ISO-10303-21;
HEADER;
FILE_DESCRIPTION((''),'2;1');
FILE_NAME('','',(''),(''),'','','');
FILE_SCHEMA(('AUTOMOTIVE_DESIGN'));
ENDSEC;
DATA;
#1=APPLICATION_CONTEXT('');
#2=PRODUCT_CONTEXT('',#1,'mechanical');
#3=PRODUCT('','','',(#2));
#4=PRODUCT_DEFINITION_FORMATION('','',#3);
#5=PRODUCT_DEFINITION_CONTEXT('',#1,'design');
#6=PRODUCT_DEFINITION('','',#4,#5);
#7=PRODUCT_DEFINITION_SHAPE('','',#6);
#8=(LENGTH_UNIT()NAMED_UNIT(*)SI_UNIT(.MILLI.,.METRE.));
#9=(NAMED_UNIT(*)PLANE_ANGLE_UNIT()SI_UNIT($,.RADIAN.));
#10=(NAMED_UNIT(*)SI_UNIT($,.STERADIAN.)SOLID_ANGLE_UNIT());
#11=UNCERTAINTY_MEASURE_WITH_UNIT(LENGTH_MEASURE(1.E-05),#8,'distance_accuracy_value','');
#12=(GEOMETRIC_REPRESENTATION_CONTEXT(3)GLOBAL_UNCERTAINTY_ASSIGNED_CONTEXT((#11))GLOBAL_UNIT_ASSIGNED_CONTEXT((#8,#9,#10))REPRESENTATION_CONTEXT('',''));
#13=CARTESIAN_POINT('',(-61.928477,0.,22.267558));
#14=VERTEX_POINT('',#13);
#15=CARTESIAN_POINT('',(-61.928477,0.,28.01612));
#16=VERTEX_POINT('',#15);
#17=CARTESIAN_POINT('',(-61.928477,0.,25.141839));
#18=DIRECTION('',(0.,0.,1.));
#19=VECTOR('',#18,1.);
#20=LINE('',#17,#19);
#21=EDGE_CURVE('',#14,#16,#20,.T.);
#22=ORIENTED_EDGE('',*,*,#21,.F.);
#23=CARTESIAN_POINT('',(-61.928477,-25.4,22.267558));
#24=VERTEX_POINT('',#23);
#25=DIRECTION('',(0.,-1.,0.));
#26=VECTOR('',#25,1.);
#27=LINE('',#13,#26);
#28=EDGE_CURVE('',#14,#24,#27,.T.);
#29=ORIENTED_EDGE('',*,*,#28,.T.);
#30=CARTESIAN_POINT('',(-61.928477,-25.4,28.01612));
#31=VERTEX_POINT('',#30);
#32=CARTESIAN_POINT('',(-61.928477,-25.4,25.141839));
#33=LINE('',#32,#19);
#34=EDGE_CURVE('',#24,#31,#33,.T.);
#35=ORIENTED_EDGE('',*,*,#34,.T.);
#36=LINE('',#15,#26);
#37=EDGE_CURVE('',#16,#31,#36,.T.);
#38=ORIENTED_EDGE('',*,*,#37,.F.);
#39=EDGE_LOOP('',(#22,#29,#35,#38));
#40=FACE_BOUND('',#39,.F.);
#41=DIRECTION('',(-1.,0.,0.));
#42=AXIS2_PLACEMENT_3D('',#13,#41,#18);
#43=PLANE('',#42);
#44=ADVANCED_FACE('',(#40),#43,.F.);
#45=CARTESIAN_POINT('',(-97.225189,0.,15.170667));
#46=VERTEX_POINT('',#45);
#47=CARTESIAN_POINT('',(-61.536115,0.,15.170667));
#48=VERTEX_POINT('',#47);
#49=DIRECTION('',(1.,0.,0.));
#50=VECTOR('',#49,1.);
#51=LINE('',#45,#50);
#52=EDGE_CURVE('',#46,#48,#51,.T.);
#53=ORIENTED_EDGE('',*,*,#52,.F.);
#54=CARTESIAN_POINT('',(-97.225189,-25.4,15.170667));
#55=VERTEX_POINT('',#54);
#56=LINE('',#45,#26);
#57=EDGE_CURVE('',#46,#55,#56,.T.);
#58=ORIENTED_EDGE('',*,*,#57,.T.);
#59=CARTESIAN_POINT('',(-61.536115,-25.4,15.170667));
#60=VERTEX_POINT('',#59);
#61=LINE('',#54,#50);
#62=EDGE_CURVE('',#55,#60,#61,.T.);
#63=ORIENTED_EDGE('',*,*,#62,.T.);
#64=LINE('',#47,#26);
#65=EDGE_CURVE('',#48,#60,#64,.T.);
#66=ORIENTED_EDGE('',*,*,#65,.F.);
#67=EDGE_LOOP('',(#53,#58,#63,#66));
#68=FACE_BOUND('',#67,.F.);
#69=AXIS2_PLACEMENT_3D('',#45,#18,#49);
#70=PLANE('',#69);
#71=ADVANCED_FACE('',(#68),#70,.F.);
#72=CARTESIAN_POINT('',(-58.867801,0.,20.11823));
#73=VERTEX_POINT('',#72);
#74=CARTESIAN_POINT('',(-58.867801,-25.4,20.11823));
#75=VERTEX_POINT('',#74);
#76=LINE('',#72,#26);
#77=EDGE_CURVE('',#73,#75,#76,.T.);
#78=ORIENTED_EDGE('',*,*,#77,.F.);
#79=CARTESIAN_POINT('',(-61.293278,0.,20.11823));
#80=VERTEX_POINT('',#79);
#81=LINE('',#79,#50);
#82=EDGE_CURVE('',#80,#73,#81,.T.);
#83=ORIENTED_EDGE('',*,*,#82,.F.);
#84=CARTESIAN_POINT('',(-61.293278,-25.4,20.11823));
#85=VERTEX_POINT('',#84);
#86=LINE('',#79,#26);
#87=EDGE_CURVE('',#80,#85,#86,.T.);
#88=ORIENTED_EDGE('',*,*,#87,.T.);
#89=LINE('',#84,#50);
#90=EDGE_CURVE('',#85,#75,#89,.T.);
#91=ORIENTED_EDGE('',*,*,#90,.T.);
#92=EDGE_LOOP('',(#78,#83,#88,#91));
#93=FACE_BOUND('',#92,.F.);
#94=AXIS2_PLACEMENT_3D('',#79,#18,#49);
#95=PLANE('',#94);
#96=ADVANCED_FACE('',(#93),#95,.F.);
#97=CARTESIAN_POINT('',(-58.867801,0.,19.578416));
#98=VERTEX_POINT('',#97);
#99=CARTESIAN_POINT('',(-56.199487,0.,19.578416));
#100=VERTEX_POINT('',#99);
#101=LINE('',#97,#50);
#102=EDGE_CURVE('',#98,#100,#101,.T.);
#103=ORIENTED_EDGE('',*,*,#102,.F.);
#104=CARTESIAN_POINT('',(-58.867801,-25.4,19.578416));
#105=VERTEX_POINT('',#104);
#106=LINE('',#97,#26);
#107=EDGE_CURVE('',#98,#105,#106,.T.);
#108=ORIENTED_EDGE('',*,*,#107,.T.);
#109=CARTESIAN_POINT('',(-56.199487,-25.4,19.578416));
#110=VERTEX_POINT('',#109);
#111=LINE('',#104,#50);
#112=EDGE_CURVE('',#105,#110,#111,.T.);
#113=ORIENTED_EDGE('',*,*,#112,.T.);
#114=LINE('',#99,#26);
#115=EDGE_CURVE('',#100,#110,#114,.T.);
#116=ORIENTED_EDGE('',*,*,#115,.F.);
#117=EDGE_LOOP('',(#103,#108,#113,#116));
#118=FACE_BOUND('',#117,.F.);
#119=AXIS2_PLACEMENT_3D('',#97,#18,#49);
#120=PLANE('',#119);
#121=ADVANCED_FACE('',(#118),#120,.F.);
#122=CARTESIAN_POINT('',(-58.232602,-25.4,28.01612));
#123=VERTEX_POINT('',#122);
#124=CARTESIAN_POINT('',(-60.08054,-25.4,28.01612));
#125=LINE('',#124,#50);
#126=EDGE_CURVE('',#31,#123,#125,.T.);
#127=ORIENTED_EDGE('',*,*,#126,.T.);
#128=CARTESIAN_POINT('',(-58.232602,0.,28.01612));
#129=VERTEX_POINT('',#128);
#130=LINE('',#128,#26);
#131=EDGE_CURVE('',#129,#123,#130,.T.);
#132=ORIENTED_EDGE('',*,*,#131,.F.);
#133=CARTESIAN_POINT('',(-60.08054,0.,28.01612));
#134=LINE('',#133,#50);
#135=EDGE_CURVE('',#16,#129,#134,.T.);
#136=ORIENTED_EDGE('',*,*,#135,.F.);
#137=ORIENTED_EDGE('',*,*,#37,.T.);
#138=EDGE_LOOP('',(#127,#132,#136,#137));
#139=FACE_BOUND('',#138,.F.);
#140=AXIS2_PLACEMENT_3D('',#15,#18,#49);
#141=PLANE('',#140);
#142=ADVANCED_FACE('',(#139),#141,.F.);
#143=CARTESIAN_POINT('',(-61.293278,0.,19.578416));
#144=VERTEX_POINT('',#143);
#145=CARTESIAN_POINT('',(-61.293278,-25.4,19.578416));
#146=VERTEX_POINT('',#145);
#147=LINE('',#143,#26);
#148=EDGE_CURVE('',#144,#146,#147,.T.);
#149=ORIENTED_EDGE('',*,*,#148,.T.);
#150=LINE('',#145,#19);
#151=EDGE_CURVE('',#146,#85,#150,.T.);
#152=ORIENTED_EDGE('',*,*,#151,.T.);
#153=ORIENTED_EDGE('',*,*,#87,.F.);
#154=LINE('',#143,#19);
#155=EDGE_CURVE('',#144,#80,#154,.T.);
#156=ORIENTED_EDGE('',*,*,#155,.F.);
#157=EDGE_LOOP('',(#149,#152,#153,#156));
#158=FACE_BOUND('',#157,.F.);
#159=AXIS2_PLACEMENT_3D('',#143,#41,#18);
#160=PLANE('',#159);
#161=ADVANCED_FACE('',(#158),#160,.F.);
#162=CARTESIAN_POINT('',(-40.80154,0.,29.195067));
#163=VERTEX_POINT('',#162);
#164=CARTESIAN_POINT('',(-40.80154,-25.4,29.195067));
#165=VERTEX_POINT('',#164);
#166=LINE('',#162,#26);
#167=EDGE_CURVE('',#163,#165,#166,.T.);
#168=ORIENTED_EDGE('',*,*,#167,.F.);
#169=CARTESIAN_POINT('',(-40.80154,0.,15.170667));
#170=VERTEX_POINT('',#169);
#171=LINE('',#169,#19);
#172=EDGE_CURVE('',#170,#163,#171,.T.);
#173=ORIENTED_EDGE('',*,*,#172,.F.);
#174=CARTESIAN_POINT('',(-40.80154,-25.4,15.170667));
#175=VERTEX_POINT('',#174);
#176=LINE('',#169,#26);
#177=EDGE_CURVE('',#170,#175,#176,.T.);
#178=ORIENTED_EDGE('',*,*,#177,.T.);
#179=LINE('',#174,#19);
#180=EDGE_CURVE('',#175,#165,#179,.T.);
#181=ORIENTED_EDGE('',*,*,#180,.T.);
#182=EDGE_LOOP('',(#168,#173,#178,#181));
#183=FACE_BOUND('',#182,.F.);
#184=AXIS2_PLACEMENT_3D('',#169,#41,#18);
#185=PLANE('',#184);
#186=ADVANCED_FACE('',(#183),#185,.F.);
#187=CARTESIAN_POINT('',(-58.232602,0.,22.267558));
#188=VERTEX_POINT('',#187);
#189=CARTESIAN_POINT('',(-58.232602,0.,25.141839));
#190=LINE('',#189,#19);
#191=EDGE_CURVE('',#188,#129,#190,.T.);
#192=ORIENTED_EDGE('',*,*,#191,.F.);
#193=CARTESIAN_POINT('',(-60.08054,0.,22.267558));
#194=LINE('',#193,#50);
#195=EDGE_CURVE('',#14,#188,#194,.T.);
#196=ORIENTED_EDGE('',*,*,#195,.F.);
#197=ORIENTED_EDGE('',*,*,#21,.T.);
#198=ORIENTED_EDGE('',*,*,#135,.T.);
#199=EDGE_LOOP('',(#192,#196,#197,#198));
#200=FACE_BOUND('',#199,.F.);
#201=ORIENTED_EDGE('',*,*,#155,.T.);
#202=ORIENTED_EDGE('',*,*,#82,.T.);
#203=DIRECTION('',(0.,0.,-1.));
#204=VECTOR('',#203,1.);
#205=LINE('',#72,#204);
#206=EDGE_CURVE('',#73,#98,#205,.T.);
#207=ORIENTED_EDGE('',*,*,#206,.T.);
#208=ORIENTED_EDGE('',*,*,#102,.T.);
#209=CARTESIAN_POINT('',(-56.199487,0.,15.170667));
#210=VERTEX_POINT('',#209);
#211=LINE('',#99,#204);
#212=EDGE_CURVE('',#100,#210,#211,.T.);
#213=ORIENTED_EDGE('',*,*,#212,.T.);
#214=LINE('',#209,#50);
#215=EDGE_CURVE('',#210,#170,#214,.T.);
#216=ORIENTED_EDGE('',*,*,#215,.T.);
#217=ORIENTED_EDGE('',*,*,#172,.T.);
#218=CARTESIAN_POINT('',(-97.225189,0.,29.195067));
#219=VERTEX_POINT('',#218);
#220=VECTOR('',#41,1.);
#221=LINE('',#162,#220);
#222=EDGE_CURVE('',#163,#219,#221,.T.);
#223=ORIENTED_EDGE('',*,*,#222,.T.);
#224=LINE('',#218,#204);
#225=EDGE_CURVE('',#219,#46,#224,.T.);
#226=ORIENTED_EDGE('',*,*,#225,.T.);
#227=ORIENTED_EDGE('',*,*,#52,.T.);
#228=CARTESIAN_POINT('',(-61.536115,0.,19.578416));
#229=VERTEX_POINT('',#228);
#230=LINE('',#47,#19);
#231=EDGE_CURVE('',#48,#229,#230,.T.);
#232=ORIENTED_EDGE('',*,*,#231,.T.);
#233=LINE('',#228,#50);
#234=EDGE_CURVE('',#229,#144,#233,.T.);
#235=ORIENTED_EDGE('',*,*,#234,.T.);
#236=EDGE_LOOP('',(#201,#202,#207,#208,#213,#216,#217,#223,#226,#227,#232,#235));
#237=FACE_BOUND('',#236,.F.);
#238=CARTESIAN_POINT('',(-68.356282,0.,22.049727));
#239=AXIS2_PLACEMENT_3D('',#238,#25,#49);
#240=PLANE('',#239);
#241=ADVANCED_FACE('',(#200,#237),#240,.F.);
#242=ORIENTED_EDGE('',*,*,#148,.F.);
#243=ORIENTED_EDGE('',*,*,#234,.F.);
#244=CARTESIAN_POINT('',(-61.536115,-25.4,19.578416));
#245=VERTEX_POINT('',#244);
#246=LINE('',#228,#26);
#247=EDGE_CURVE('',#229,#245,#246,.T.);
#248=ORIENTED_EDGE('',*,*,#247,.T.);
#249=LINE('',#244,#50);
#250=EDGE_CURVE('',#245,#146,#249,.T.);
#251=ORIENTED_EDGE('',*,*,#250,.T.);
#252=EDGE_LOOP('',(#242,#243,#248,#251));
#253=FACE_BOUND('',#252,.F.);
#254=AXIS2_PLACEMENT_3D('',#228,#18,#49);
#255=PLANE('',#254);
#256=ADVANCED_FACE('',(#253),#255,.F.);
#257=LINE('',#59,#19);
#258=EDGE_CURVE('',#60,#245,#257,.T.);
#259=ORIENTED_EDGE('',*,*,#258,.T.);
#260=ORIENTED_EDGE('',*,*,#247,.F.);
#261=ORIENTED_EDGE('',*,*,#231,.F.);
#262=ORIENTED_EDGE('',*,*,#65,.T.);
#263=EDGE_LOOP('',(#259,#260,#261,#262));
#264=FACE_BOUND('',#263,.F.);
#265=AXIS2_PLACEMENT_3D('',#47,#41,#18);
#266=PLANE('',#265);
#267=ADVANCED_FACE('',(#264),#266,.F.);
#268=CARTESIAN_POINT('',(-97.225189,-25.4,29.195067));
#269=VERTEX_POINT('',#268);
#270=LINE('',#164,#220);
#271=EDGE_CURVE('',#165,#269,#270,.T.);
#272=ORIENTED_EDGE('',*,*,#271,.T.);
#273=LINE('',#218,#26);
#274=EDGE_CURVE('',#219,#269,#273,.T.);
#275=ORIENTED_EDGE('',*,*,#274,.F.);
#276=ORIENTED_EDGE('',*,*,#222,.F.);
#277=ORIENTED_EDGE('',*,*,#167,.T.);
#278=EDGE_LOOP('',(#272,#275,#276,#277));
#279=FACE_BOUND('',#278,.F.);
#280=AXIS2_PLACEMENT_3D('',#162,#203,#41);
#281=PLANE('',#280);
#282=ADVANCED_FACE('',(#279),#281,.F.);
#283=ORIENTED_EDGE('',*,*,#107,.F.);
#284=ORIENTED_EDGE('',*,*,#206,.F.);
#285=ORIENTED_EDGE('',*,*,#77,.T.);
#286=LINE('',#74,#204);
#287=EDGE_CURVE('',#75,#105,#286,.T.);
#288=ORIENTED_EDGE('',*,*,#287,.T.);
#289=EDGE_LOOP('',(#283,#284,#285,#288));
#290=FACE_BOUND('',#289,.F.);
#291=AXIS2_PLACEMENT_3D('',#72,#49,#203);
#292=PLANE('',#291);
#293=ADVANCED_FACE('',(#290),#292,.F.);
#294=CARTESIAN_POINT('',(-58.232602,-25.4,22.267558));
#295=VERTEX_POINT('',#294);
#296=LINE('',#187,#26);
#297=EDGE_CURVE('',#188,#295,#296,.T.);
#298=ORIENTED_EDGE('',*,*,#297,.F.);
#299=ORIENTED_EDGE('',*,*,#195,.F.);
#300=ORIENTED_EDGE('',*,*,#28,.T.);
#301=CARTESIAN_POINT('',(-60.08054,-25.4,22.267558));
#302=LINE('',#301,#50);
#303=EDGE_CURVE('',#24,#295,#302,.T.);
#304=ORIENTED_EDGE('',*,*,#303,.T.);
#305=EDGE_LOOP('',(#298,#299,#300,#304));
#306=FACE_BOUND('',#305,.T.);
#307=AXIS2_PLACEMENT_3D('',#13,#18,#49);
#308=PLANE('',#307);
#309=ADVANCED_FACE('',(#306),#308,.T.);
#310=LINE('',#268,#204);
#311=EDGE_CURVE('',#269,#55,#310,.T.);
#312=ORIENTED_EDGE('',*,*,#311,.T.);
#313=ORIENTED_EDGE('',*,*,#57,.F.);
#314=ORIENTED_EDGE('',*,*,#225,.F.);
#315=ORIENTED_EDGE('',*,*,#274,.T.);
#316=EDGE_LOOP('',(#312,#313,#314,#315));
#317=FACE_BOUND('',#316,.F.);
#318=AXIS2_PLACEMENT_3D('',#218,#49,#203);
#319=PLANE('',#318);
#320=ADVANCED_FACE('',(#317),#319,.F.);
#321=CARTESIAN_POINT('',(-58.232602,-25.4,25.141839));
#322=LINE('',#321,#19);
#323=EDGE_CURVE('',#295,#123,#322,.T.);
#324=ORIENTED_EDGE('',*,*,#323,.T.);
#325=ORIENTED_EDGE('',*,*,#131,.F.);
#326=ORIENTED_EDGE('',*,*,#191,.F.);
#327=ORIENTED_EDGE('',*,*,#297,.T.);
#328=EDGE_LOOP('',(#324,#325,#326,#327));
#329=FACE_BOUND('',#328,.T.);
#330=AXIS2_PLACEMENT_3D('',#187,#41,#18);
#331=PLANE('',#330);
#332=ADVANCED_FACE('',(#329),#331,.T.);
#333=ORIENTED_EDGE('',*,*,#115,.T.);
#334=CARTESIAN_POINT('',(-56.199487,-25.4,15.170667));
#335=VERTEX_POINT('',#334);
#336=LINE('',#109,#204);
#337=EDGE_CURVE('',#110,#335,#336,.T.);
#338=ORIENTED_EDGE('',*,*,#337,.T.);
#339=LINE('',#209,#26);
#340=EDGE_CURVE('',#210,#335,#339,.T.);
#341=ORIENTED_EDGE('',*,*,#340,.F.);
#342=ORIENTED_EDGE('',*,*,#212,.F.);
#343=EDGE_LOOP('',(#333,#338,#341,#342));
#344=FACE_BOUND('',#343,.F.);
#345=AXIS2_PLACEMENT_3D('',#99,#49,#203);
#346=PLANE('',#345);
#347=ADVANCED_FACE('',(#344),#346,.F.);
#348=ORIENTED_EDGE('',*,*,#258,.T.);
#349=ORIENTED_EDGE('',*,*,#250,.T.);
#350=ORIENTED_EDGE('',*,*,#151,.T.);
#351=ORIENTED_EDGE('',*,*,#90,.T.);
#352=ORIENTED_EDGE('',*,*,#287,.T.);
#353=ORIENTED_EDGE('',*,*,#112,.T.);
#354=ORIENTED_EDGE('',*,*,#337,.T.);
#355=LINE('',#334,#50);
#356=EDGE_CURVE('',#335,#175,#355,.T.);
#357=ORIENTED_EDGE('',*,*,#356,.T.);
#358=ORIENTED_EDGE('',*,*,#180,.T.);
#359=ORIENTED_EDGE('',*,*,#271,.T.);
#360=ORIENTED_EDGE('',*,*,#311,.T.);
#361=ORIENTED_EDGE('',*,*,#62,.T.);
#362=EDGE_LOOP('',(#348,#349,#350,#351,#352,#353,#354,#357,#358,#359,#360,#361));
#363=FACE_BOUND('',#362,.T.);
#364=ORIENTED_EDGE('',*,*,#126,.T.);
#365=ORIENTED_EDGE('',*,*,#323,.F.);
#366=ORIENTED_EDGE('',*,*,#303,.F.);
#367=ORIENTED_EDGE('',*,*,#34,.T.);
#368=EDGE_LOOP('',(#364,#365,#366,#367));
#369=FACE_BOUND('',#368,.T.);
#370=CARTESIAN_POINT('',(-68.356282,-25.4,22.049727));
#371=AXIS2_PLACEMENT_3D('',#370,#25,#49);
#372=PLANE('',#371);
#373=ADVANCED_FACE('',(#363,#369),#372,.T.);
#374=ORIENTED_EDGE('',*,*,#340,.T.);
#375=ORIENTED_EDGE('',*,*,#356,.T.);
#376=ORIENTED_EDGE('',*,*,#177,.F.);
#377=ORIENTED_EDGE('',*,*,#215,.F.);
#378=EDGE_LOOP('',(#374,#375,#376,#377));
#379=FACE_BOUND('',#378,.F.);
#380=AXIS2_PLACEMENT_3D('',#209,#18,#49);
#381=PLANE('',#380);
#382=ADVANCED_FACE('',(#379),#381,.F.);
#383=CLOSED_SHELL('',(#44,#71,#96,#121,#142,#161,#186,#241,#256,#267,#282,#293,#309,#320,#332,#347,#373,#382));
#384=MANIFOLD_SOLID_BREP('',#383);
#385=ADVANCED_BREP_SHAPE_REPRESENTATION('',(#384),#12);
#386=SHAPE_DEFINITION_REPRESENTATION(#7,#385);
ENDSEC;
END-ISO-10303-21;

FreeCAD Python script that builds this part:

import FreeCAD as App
import Part
import Sketcher

V = App.Vector
Q = App.Units.Quantity


def add_polygon(sketch, points):
    """Adds a closed chain of lines whose ends are joined by coincident constraints."""
    first, n = sketch.GeometryCount, len(points)
    for a, b in zip(points, points[1:] + points[:1]):
        sketch.addGeometry(Part.LineSegment(App.Vector(*a, 0), App.Vector(*b, 0)), False)
    for i in range(n):
        sketch.addConstraint(Sketcher.Constraint("Coincident", first + i, 2, first + (i + 1) % n, 1))

doc = App.newDocument("Part")
params = doc.addObject("Spreadsheet::Sheet", "Params")
for row, (alias, value) in enumerate([
    ("pad1_length", "1 in"),
], start=1):
    params.set(f"A{row}", alias)
    params.set(f"B{row}", "=" + value)
    params.setAlias(f"B{row}", alias)

body = doc.addObject("PartDesign::Body", "Body")

# Sketch on XZ plane
sketch1 = doc.addObject("Sketcher::SketchObject", "Sketch")
body.addObject(sketch1)
sketch1.AttachmentSupport = (doc.XZ_Plane, [""])
sketch1.MapMode = "FlatFace"
add_polygon(sketch1, [(-40.8, 15.17), (-40.8, 29.2), (-97.23, 29.2), (-97.23, 15.17), (-61.54, 15.17), (-61.54, 19.58), (-61.29, 19.58), (-61.29, 20.12), (-58.87, 20.12), (-58.87, 19.58), (-56.2, 19.58), (-56.2, 15.17)])  # lines 0-11
add_polygon(sketch1, [(-58.23, 22.27), (-61.93, 22.27), (-61.93, 28.02), (-58.23, 28.02)])  # lines 12-15
sketch1.addConstraint([
    Sketcher.Constraint("Vertical", 0),
    Sketcher.Constraint("Horizontal", 1),
    Sketcher.Constraint("Vertical", 2),
    Sketcher.Constraint("Horizontal", 3),
    Sketcher.Constraint("Vertical", 4),
    Sketcher.Constraint("Horizontal", 5),
    Sketcher.Constraint("Vertical", 6),
    Sketcher.Constraint("Horizontal", 7),
    Sketcher.Constraint("Vertical", 8),
    Sketcher.Constraint("Horizontal", 9),
    Sketcher.Constraint("Vertical", 10),
    Sketcher.Constraint("Horizontal", 11),
    Sketcher.Constraint("Horizontal", 12),
    Sketcher.Constraint("Vertical", 13),
    Sketcher.Constraint("Horizontal", 14),
    Sketcher.Constraint("Vertical", 15),
    Sketcher.Constraint("Horizontal", 5, 2, 8, 2),
    Sketcher.Constraint("Horizontal", 3, 2, 10, 2),
    Sketcher.Constraint("DistanceY", 0, 1, 0, 2, Q("14.0244 mm")),
    Sketcher.Constraint("DistanceX", 1, 2, 1, 1, Q("56.423649 mm")),
    Sketcher.Constraint("DistanceY", 4, 1, 4, 2, Q("4.407749 mm")),
    Sketcher.Constraint("DistanceY", 13, 1, 13, 2, Q("5.748562 mm")),
    Sketcher.Constraint("DistanceX", 7, 2, -1, 1, Q("58.867801 mm")),
    Sketcher.Constraint("DistanceX", 12, 2, 6, 2, Q("0.635199 mm")),
    Sketcher.Constraint("DistanceX", 7, 2, 14, 2, Q("0.635199 mm")),
    Sketcher.Constraint("DistanceX", 3, 1, 3, 2, Q("35.689074 mm")),
    Sketcher.Constraint("DistanceX", 5, 1, 5, 2, Q("0.242837 mm")),
    Sketcher.Constraint("DistanceX", 7, 1, 7, 2, Q("2.425477 mm")),
    Sketcher.Constraint("DistanceX", 9, 1, 9, 2, Q("2.668314 mm")),
    Sketcher.Constraint("DistanceY", 6, 1, 6, 2, Q("0.539814 mm")),
    Sketcher.Constraint("DistanceY", -1, 1, 6, 2, Q("20.11823 mm")),
    Sketcher.Constraint("DistanceY", -1, 1, 12, 2, Q("22.267558 mm")),
])
pad1 = doc.addObject("PartDesign::Pad", "Pad")
body.addObject(pad1)
pad1.Profile = sketch1
pad1.setExpression("Length", "Params.pad1_length")

doc.recompute()
